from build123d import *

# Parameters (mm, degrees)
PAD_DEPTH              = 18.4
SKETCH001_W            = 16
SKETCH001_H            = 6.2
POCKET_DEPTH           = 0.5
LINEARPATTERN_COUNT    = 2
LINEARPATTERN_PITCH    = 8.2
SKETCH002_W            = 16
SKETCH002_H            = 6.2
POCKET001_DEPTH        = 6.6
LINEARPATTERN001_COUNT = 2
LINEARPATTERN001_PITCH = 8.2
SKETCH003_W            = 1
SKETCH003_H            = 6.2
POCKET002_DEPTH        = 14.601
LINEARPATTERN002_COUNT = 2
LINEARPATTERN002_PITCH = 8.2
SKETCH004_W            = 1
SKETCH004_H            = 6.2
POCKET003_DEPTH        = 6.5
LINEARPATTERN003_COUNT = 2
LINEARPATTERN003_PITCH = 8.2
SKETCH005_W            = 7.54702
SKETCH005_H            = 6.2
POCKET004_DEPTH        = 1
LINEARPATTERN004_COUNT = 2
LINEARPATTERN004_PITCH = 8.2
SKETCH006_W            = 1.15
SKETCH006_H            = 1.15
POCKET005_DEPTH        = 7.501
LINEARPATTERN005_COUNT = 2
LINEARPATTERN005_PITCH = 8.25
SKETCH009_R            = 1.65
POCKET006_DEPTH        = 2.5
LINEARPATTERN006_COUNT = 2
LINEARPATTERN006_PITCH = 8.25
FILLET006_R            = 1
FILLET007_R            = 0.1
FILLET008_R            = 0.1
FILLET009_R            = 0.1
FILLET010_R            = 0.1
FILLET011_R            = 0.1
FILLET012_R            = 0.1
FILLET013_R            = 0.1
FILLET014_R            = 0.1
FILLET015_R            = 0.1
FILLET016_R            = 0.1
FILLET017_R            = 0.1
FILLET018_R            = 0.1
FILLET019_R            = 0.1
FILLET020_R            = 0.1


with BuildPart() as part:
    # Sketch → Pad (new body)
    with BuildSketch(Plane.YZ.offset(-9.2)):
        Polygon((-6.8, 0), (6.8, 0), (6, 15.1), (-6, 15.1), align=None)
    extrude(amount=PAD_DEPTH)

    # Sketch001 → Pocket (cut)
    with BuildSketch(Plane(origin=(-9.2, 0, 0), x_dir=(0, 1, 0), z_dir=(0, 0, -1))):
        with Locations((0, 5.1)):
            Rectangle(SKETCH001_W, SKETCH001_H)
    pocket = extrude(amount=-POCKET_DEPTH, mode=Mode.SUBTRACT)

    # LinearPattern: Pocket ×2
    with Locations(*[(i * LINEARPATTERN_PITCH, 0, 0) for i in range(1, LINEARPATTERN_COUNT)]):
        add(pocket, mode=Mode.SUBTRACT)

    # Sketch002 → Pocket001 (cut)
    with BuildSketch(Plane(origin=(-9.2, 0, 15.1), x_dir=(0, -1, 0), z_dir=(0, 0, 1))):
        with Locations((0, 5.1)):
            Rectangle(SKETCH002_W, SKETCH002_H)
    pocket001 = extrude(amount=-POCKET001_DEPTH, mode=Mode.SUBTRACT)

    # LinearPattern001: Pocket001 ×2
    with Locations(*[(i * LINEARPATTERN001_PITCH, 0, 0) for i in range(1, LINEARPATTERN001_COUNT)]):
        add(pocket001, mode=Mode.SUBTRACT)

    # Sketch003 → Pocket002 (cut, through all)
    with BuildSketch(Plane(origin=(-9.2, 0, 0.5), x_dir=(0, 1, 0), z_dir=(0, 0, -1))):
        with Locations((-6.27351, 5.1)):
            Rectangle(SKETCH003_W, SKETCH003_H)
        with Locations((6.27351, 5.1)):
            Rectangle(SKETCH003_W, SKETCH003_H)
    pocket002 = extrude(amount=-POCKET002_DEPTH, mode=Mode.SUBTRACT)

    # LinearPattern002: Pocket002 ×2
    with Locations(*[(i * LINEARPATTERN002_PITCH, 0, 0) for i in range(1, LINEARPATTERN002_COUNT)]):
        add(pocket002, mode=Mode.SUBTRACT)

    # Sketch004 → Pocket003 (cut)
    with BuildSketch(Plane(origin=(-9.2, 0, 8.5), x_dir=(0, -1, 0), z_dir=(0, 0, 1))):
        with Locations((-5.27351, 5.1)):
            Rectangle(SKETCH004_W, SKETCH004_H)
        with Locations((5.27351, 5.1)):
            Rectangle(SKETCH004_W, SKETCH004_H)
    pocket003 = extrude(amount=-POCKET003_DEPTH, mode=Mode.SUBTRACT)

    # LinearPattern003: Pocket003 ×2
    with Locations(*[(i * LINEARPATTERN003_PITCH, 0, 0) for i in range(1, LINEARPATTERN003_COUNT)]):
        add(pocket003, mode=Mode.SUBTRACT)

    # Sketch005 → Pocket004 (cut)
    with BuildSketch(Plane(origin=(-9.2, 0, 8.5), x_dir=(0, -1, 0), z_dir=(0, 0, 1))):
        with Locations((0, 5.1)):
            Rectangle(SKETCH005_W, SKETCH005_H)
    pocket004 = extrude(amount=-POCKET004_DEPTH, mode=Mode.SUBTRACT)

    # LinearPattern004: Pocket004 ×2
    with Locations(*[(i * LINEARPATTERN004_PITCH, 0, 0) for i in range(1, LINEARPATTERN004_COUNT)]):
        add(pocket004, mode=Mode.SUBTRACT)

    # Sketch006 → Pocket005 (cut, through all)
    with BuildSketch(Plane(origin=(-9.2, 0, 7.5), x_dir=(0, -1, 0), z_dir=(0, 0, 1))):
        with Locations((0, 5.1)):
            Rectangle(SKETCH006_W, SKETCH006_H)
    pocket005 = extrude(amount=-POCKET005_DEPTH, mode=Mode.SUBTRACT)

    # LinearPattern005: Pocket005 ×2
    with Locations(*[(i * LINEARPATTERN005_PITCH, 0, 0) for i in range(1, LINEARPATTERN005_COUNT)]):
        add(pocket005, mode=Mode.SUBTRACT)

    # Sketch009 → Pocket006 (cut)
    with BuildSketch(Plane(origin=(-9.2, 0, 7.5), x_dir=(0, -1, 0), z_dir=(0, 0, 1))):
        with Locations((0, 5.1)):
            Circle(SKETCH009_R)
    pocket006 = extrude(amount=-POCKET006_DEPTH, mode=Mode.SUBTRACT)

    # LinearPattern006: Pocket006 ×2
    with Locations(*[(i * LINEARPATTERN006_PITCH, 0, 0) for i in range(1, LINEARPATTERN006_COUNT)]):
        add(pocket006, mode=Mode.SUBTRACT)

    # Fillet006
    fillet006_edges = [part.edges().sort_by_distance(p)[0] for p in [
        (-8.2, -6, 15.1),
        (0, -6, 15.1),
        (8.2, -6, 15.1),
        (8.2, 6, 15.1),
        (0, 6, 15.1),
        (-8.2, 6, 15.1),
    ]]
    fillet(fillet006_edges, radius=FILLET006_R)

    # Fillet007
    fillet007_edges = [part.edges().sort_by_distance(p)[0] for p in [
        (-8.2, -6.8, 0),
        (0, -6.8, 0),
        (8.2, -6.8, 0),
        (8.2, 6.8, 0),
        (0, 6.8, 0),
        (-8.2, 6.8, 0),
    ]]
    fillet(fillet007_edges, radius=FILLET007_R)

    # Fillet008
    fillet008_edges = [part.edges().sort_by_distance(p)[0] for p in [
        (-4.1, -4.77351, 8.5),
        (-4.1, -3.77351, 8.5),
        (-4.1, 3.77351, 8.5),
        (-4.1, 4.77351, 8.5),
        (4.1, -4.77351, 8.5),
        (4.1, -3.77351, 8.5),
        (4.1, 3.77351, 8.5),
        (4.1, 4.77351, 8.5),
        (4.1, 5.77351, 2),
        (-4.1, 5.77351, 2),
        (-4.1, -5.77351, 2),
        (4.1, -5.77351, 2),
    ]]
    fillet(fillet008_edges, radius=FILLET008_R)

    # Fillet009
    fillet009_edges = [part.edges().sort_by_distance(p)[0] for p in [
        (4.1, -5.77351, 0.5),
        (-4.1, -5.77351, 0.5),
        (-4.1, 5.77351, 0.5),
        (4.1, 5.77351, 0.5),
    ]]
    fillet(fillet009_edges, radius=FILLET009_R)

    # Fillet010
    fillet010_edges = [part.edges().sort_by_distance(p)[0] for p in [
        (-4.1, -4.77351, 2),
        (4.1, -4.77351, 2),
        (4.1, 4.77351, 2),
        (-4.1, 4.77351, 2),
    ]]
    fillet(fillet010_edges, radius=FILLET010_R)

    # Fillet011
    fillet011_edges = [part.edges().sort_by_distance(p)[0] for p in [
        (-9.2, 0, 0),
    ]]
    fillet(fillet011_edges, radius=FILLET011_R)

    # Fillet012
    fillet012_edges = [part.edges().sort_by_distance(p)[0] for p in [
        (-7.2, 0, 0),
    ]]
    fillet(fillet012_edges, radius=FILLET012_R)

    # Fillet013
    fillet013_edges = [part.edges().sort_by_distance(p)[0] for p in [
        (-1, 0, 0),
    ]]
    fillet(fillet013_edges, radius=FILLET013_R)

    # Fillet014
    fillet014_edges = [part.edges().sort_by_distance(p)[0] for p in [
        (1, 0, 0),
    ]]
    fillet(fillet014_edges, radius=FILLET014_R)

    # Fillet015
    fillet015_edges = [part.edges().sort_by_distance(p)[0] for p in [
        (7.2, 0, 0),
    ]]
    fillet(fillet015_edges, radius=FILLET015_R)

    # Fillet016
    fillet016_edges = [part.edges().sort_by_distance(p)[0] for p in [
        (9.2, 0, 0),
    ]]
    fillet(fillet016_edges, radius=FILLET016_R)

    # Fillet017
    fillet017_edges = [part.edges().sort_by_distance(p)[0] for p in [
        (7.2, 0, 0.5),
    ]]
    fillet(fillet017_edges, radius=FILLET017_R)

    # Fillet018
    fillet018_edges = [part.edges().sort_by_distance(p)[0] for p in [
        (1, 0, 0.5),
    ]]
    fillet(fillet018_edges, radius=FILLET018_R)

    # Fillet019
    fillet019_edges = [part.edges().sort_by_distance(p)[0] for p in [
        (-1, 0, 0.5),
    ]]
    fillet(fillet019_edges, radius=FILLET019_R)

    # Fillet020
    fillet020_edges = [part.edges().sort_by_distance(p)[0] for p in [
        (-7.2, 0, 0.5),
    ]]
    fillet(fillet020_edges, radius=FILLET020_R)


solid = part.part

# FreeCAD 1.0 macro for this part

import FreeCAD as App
import Part
import Sketcher
Q = App.Units.Quantity


def edges_at(feature, points):
    """Names of the edges that pass closest to the given points."""
    edges = feature.Shape.Edges
    near = lambda p: min(range(len(edges)), key=lambda i: edges[i].distToShape(Part.Vertex(*p))[0])
    return sorted({f"Edge{near(p) + 1}" for p in points})

doc = App.newDocument("Part")
body = doc.addObject("PartDesign::Body", "Body")

# Sketch on YZ plane
sketch1 = doc.addObject("Sketcher::SketchObject", "Sketch")
body.addObject(sketch1)
sketch1.AttachmentSupport = (doc.YZ_Plane, [""])
sketch1.MapMode = "FlatFace"
sketch1.AttachmentOffset = App.Placement(App.Vector(0, 0, -9.2), App.Rotation())
sketch1.addGeometry(Part.LineSegment(App.Vector(-7, 0, 0), App.Vector(7, 0, 0)), False)
sketch1.addGeometry(Part.LineSegment(App.Vector(7, 0, 0), App.Vector(6, 15, 0)), False)
sketch1.addGeometry(Part.LineSegment(App.Vector(6, 15, 0), App.Vector(-6, 15, 0)), False)
sketch1.addGeometry(Part.LineSegment(App.Vector(-6, 15, 0), App.Vector(-7, 0, 0)), False)
sketch1.addConstraint(Sketcher.Constraint("Coincident", 0, 2, 1, 1))
sketch1.addConstraint(Sketcher.Constraint("Coincident", 1, 2, 2, 1))
sketch1.addConstraint(Sketcher.Constraint("Coincident", 2, 2, 3, 1))
sketch1.addConstraint(Sketcher.Constraint("Coincident", 3, 2, 0, 1))
sketch1.addConstraint(Sketcher.Constraint("Horizontal", 0))
sketch1.addConstraint(Sketcher.Constraint("Horizontal", 2))
sketch1.addConstraint(Sketcher.Constraint("Symmetric", 0, 2, 3, 2, -1, 1))
sketch1.addConstraint(Sketcher.Constraint("Equal", 1, 3))
sketch1.addConstraint(Sketcher.Constraint("DistanceX", 2, 2, 2, 1, Q("12 mm")))
sketch1.addConstraint(Sketcher.Constraint("DistanceX", 0, 1, 0, 2, Q("13.6 mm")))
sketch1.addConstraint(Sketcher.Constraint("DistanceY", -1, 1, 1, 2, Q("15.1 mm")))
pad1 = doc.addObject("PartDesign::Pad", "Pad")
body.addObject(pad1)
pad1.Profile = sketch1
pad1.Length = 18.4

# Sketch on XY plane
sketch2 = doc.addObject("Sketcher::SketchObject", "Sketch001")
body.addObject(sketch2)
sketch2.AttachmentSupport = (doc.XY_Plane, [""])
sketch2.MapMode = "FlatFace"
sketch2.addGeometry(Part.LineSegment(App.Vector(-1, -8, 0), App.Vector(-7, -8, 0)), False)
sketch2.addGeometry(Part.LineSegment(App.Vector(-7, -8, 0), App.Vector(-7, 8, 0)), False)
sketch2.addGeometry(Part.LineSegment(App.Vector(-7, 8, 0), App.Vector(-1, 8, 0)), False)
sketch2.addGeometry(Part.LineSegment(App.Vector(-1, 8, 0), App.Vector(-1, -8, 0)), False)
sketch2.addConstraint(Sketcher.Constraint("Coincident", 0, 2, 1, 1))
sketch2.addConstraint(Sketcher.Constraint("Coincident", 1, 2, 2, 1))
sketch2.addConstraint(Sketcher.Constraint("Coincident", 2, 2, 3, 1))
sketch2.addConstraint(Sketcher.Constraint("Coincident", 3, 2, 0, 1))
sketch2.addConstraint(Sketcher.Constraint("Horizontal", 0))
sketch2.addConstraint(Sketcher.Constraint("Vertical", 1))
sketch2.addConstraint(Sketcher.Constraint("Horizontal", 2))
sketch2.addConstraint(Sketcher.Constraint("Vertical", 3))
sketch2.addConstraint(Sketcher.Constraint("DistanceY", 1, 1, 1, 2, Q("16 mm")))
sketch2.addConstraint(Sketcher.Constraint("DistanceX", 0, 2, 0, 1, Q("6.2 mm")))
sketch2.addConstraint(Sketcher.Constraint("DistanceY", 0, 2, -1, 1, Q("8 mm")))
sketch2.addConstraint(Sketcher.Constraint("DistanceX", 2, 2, -1, 1, Q("1 mm")))
pocket1 = doc.addObject("PartDesign::Pocket", "Pocket")
body.addObject(pocket1)
pocket1.Profile = sketch2
pocket1.Length = 0.5
pocket1.Reversed = True
doc.recompute()

linearpattern = doc.addObject("PartDesign::LinearPattern", "LinearPattern")
body.addObject(linearpattern)
linearpattern.Originals = [pocket1]
linearpattern.Direction = (doc.X_Axis, [""])
linearpattern.Mode = "offset"
linearpattern.Offset = 8.2
linearpattern.Occurrences = 2
body.Tip = linearpattern

# Sketch on XY plane
sketch3 = doc.addObject("Sketcher::SketchObject", "Sketch002")
body.addObject(sketch3)
sketch3.AttachmentSupport = (doc.XY_Plane, [""])
sketch3.MapMode = "FlatFace"
sketch3.AttachmentOffset = App.Placement(App.Vector(0, 0, 15.1), App.Rotation())
sketch3.addGeometry(Part.LineSegment(App.Vector(-1, 8, 0), App.Vector(-7, 8, 0)), False)
sketch3.addGeometry(Part.LineSegment(App.Vector(-7, 8, 0), App.Vector(-7, -8, 0)), False)
sketch3.addGeometry(Part.LineSegment(App.Vector(-7, -8, 0), App.Vector(-1, -8, 0)), False)
sketch3.addGeometry(Part.LineSegment(App.Vector(-1, -8, 0), App.Vector(-1, 8, 0)), False)
sketch3.addConstraint(Sketcher.Constraint("Coincident", 0, 2, 1, 1))
sketch3.addConstraint(Sketcher.Constraint("Coincident", 1, 2, 2, 1))
sketch3.addConstraint(Sketcher.Constraint("Coincident", 2, 2, 3, 1))
sketch3.addConstraint(Sketcher.Constraint("Coincident", 3, 2, 0, 1))
sketch3.addConstraint(Sketcher.Constraint("Horizontal", 0))
sketch3.addConstraint(Sketcher.Constraint("Vertical", 1))
sketch3.addConstraint(Sketcher.Constraint("Horizontal", 2))
sketch3.addConstraint(Sketcher.Constraint("Vertical", 3))
sketch3.addConstraint(Sketcher.Constraint("DistanceY", 1, 2, 1, 1, Q("16 mm")))
sketch3.addConstraint(Sketcher.Constraint("DistanceX", 0, 2, 0, 1, Q("6.2 mm")))
sketch3.addConstraint(Sketcher.Constraint("DistanceY", -1, 1, 0, 2, Q("8 mm")))
sketch3.addConstraint(Sketcher.Constraint("DistanceX", 2, 2, -1, 1, Q("1 mm")))
pocket2 = doc.addObject("PartDesign::Pocket", "Pocket001")
body.addObject(pocket2)
pocket2.Profile = sketch3
pocket2.Length = 6.6
doc.recompute()

linearpattern2 = doc.addObject("PartDesign::LinearPattern", "LinearPattern001")
body.addObject(linearpattern2)
linearpattern2.Originals = [pocket2]
linearpattern2.Direction = (doc.X_Axis, [""])
linearpattern2.Mode = "offset"
linearpattern2.Offset = 8.2
linearpattern2.Occurrences = 2
body.Tip = linearpattern2

# Sketch on XY plane
sketch4 = doc.addObject("Sketcher::SketchObject", "Sketch003")
body.addObject(sketch4)
sketch4.AttachmentSupport = (doc.XY_Plane, [""])
sketch4.MapMode = "FlatFace"
sketch4.AttachmentOffset = App.Placement(App.Vector(0, 0, 0.5), App.Rotation())
sketch4.addGeometry(Part.LineSegment(App.Vector(-1, -6.8, 0), App.Vector(-7.2, -6.8, 0)), False)
sketch4.addGeometry(Part.LineSegment(App.Vector(-7.2, -6.8, 0), App.Vector(-7.2, -5.8, 0)), False)
sketch4.addGeometry(Part.LineSegment(App.Vector(-7.2, -5.8, 0), App.Vector(-1, -5.8, 0)), False)
sketch4.addGeometry(Part.LineSegment(App.Vector(-1, -5.8, 0), App.Vector(-1, -6.8, 0)), False)
sketch4.addGeometry(Part.LineSegment(App.Vector(-1, 5.8, 0), App.Vector(-7.2, 5.8, 0)), False)
sketch4.addGeometry(Part.LineSegment(App.Vector(-7.2, 5.8, 0), App.Vector(-7.2, 6.8, 0)), False)
sketch4.addGeometry(Part.LineSegment(App.Vector(-7.2, 6.8, 0), App.Vector(-1, 6.8, 0)), False)
sketch4.addGeometry(Part.LineSegment(App.Vector(-1, 6.8, 0), App.Vector(-1, 5.8, 0)), False)
sketch4.addConstraint(Sketcher.Constraint("Coincident", 0, 2, 1, 1))
sketch4.addConstraint(Sketcher.Constraint("Coincident", 1, 2, 2, 1))
sketch4.addConstraint(Sketcher.Constraint("Coincident", 2, 2, 3, 1))
sketch4.addConstraint(Sketcher.Constraint("Coincident", 3, 2, 0, 1))
sketch4.addConstraint(Sketcher.Constraint("Coincident", 4, 2, 5, 1))
sketch4.addConstraint(Sketcher.Constraint("Coincident", 5, 2, 6, 1))
sketch4.addConstraint(Sketcher.Constraint("Coincident", 6, 2, 7, 1))
sketch4.addConstraint(Sketcher.Constraint("Coincident", 7, 2, 4, 1))
sketch4.addConstraint(Sketcher.Constraint("Horizontal", 0))
sketch4.addConstraint(Sketcher.Constraint("Vertical", 1))
sketch4.addConstraint(Sketcher.Constraint("Horizontal", 2))
sketch4.addConstraint(Sketcher.Constraint("Vertical", 3))
sketch4.addConstraint(Sketcher.Constraint("Horizontal", 4))
sketch4.addConstraint(Sketcher.Constraint("Vertical", 5))
sketch4.addConstraint(Sketcher.Constraint("Horizontal", 6))
sketch4.addConstraint(Sketcher.Constraint("Vertical", 7))
sketch4.addConstraint(Sketcher.Constraint("Symmetric", 1, 2, 4, 2, -1))
sketch4.addConstraint(Sketcher.Constraint("Symmetric", 3, 2, 6, 2, -1))
sketch4.addConstraint(Sketcher.Constraint("DistanceY", 1, 1, 1, 2, Q("1 mm")))
sketch4.addConstraint(Sketcher.Constraint("DistanceX", 0, 2, 0, 1, Q("6.2 mm")))
sketch4.addConstraint(Sketcher.Constraint("DistanceX", 2, 2, -1, 1, Q("1 mm")))
sketch4.addConstraint(Sketcher.Constraint("DistanceY", 0, 2, -1, 1, Q("6.77351 mm")))
pocket3 = doc.addObject("PartDesign::Pocket", "Pocket002")
body.addObject(pocket3)
pocket3.Profile = sketch4
pocket3.Type = "ThroughAll"
pocket3.Reversed = True
doc.recompute()

linearpattern3 = doc.addObject("PartDesign::LinearPattern", "LinearPattern002")
body.addObject(linearpattern3)
linearpattern3.Originals = [pocket3]
linearpattern3.Direction = (doc.X_Axis, [""])
linearpattern3.Mode = "offset"
linearpattern3.Offset = 8.2
linearpattern3.Occurrences = 2
body.Tip = linearpattern3

# Sketch on XY plane
sketch5 = doc.addObject("Sketcher::SketchObject", "Sketch004")
body.addObject(sketch5)
sketch5.AttachmentSupport = (doc.XY_Plane, [""])
sketch5.MapMode = "FlatFace"
sketch5.AttachmentOffset = App.Placement(App.Vector(0, 0, 8.5), App.Rotation())
sketch5.addGeometry(Part.LineSegment(App.Vector(-1, 5.8, 0), App.Vector(-7.2, 5.8, 0)), False)
sketch5.addGeometry(Part.LineSegment(App.Vector(-7.2, 5.8, 0), App.Vector(-7.2, 4.8, 0)), False)
sketch5.addGeometry(Part.LineSegment(App.Vector(-7.2, 4.8, 0), App.Vector(-1, 4.8, 0)), False)
sketch5.addGeometry(Part.LineSegment(App.Vector(-1, 4.8, 0), App.Vector(-1, 5.8, 0)), False)
sketch5.addGeometry(Part.LineSegment(App.Vector(-1, -4.8, 0), App.Vector(-7.2, -4.8, 0)), False)
sketch5.addGeometry(Part.LineSegment(App.Vector(-7.2, -4.8, 0), App.Vector(-7.2, -5.8, 0)), False)
sketch5.addGeometry(Part.LineSegment(App.Vector(-7.2, -5.8, 0), App.Vector(-1, -5.8, 0)), False)
sketch5.addGeometry(Part.LineSegment(App.Vector(-1, -5.8, 0), App.Vector(-1, -4.8, 0)), False)
sketch5.addConstraint(Sketcher.Constraint("Coincident", 0, 2, 1, 1))
sketch5.addConstraint(Sketcher.Constraint("Coincident", 1, 2, 2, 1))
sketch5.addConstraint(Sketcher.Constraint("Coincident", 2, 2, 3, 1))
sketch5.addConstraint(Sketcher.Constraint("Coincident", 3, 2, 0, 1))
sketch5.addConstraint(Sketcher.Constraint("Coincident", 4, 2, 5, 1))
sketch5.addConstraint(Sketcher.Constraint("Coincident", 5, 2, 6, 1))
sketch5.addConstraint(Sketcher.Constraint("Coincident", 6, 2, 7, 1))
sketch5.addConstraint(Sketcher.Constraint("Coincident", 7, 2, 4, 1))
sketch5.addConstraint(Sketcher.Constraint("Horizontal", 0))
sketch5.addConstraint(Sketcher.Constraint("Vertical", 1))
sketch5.addConstraint(Sketcher.Constraint("Horizontal", 2))
sketch5.addConstraint(Sketcher.Constraint("Vertical", 3))
sketch5.addConstraint(Sketcher.Constraint("Horizontal", 4))
sketch5.addConstraint(Sketcher.Constraint("Vertical", 5))
sketch5.addConstraint(Sketcher.Constraint("Horizontal", 6))
sketch5.addConstraint(Sketcher.Constraint("Vertical", 7))
sketch5.addConstraint(Sketcher.Constraint("Symmetric", 1, 2, 4, 2, -1))
sketch5.addConstraint(Sketcher.Constraint("Symmetric", 3, 2, 6, 2, -1))
sketch5.addConstraint(Sketcher.Constraint("DistanceY", 1, 2, 1, 1, Q("1 mm")))
sketch5.addConstraint(Sketcher.Constraint("DistanceX", 0, 2, 0, 1, Q("6.2 mm")))
sketch5.addConstraint(Sketcher.Constraint("DistanceX", 2, 2, -1, 1, Q("1 mm")))
sketch5.addConstraint(Sketcher.Constraint("DistanceY", -1, 1, 0, 2, Q("5.77351 mm")))
pocket4 = doc.addObject("PartDesign::Pocket", "Pocket003")
body.addObject(pocket4)
pocket4.Profile = sketch5
pocket4.Length = 6.5
doc.recompute()

linearpattern4 = doc.addObject("PartDesign::LinearPattern", "LinearPattern003")
body.addObject(linearpattern4)
linearpattern4.Originals = [pocket4]
linearpattern4.Direction = (doc.X_Axis, [""])
linearpattern4.Mode = "offset"
linearpattern4.Offset = 8.2
linearpattern4.Occurrences = 2
body.Tip = linearpattern4

# Sketch on XY plane
sketch6 = doc.addObject("Sketcher::SketchObject", "Sketch005")
body.addObject(sketch6)
sketch6.AttachmentSupport = (doc.XY_Plane, [""])
sketch6.MapMode = "FlatFace"
sketch6.AttachmentOffset = App.Placement(App.Vector(0, 0, 8.5), App.Rotation())
sketch6.addGeometry(Part.LineSegment(App.Vector(-1, 4, 0), App.Vector(-7, 4, 0)), False)
sketch6.addGeometry(Part.LineSegment(App.Vector(-7, 4, 0), App.Vector(-7, -4, 0)), False)
sketch6.addGeometry(Part.LineSegment(App.Vector(-7, -4, 0), App.Vector(-1, -4, 0)), False)
sketch6.addGeometry(Part.LineSegment(App.Vector(-1, -4, 0), App.Vector(-1, 4, 0)), False)
sketch6.addConstraint(Sketcher.Constraint("Coincident", 0, 2, 1, 1))
sketch6.addConstraint(Sketcher.Constraint("Coincident", 1, 2, 2, 1))
sketch6.addConstraint(Sketcher.Constraint("Coincident", 2, 2, 3, 1))
sketch6.addConstraint(Sketcher.Constraint("Coincident", 3, 2, 0, 1))
sketch6.addConstraint(Sketcher.Constraint("Horizontal", 0))
sketch6.addConstraint(Sketcher.Constraint("Vertical", 1))
sketch6.addConstraint(Sketcher.Constraint("Horizontal", 2))
sketch6.addConstraint(Sketcher.Constraint("Vertical", 3))
sketch6.addConstraint(Sketcher.Constraint("DistanceX", 0, 2, 0, 1, Q("6.2 mm")))
sketch6.addConstraint(Sketcher.Constraint("DistanceX", 2, 2, -1, 1, Q("1 mm")))
sketch6.addConstraint(Sketcher.Constraint("DistanceY", 1, 2, 1, 1, Q("7.54702 mm")))
sketch6.addConstraint(Sketcher.Constraint("DistanceY", -1, 1, 0, 2, Q("3.77351 mm")))
pocket5 = doc.addObject("PartDesign::Pocket", "Pocket004")
body.addObject(pocket5)
pocket5.Profile = sketch6
pocket5.Length = 1
doc.recompute()

linearpattern5 = doc.addObject("PartDesign::LinearPattern", "LinearPattern004")
body.addObject(linearpattern5)
linearpattern5.Originals = [pocket5]
linearpattern5.Direction = (doc.X_Axis, [""])
linearpattern5.Mode = "offset"
linearpattern5.Offset = 8.2
linearpattern5.Occurrences = 2
body.Tip = linearpattern5

# Sketch on XY plane
sketch7 = doc.addObject("Sketcher::SketchObject", "Sketch006")
body.addObject(sketch7)
sketch7.AttachmentSupport = (doc.XY_Plane, [""])
sketch7.MapMode = "FlatFace"
sketch7.AttachmentOffset = App.Placement(App.Vector(0, 0, 7.5), App.Rotation())
sketch7.addGeometry(Part.LineSegment(App.Vector(-3.5, 0.6, 0), App.Vector(-4.7, 0.6, 0)), False)
sketch7.addGeometry(Part.LineSegment(App.Vector(-4.7, 0.6, 0), App.Vector(-4.7, -0.6, 0)), False)
sketch7.addGeometry(Part.LineSegment(App.Vector(-4.7, -0.6, 0), App.Vector(-3.5, -0.6, 0)), False)
sketch7.addGeometry(Part.LineSegment(App.Vector(-3.5, -0.6, 0), App.Vector(-3.5, 0.6, 0)), False)
sketch7.addConstraint(Sketcher.Constraint("Coincident", 0, 2, 1, 1))
sketch7.addConstraint(Sketcher.Constraint("Coincident", 1, 2, 2, 1))
sketch7.addConstraint(Sketcher.Constraint("Coincident", 2, 2, 3, 1))
sketch7.addConstraint(Sketcher.Constraint("Coincident", 3, 2, 0, 1))
sketch7.addConstraint(Sketcher.Constraint("Horizontal", 0))
sketch7.addConstraint(Sketcher.Constraint("Vertical", 1))
sketch7.addConstraint(Sketcher.Constraint("Horizontal", 2))
sketch7.addConstraint(Sketcher.Constraint("Vertical", 3))
sketch7.addConstraint(Sketcher.Constraint("Equal", 2, 1))
sketch7.addConstraint(Sketcher.Constraint("DistanceX", 0, 2, 0, 1, Q("1.15 mm")))
sketch7.addConstraint(Sketcher.Constraint("DistanceX", 0, 2, -1, 1, Q("4.675 mm")))
sketch7.addConstraint(Sketcher.Constraint("DistanceY", -1, 1, 0, 2, Q("0.575 mm")))
pocket6 = doc.addObject("PartDesign::Pocket", "Pocket005")
body.addObject(pocket6)
pocket6.Profile = sketch7
pocket6.Type = "ThroughAll"
doc.recompute()

linearpattern6 = doc.addObject("PartDesign::LinearPattern", "LinearPattern005")
body.addObject(linearpattern6)
linearpattern6.Originals = [pocket6]
linearpattern6.Direction = (doc.X_Axis, [""])
linearpattern6.Mode = "offset"
linearpattern6.Offset = 8.25
linearpattern6.Occurrences = 2
body.Tip = linearpattern6

# Sketch on XY plane
sketch8 = doc.addObject("Sketcher::SketchObject", "Sketch007")
body.addObject(sketch8)
sketch8.AttachmentSupport = (doc.XY_Plane, [""])
sketch8.MapMode = "FlatFace"
sketch8.AttachmentOffset = App.Placement(App.Vector(0, 0, 7.5), App.Rotation())
sketch8.addGeometry(Part.Circle(App.Vector(-4.1, 0, 0), App.Vector(0, 0, 1), 1.6), False)
sketch8.addConstraint(Sketcher.Constraint("PointOnObject", 0, 3, -1))
sketch8.addConstraint(Sketcher.Constraint("Diameter", 0, Q("3.3 mm")))
sketch8.addConstraint(Sketcher.Constraint("DistanceX", 0, 3, -1, 1, Q("4.1 mm")))
pocket7 = doc.addObject("PartDesign::Pocket", "Pocket006")
body.addObject(pocket7)
pocket7.Profile = sketch8
pocket7.Length = 2.5
doc.recompute()

linearpattern7 = doc.addObject("PartDesign::LinearPattern", "LinearPattern006")
body.addObject(linearpattern7)
linearpattern7.Originals = [pocket7]
linearpattern7.Direction = (doc.X_Axis, [""])
linearpattern7.Mode = "offset"
linearpattern7.Offset = 8.25
linearpattern7.Occurrences = 2
body.Tip = linearpattern7
doc.recompute()

fillet = doc.addObject("PartDesign::Fillet", "Fillet")
body.addObject(fillet)
fillet.Base = (linearpattern7, edges_at(linearpattern7, [
    (-8.2, -6, 15.1),
    (0, -6, 15.1),
    (8.2, -6, 15.1),
    (8.2, 6, 15.1),
    (0, 6, 15.1),
    (-8.2, 6, 15.1),
]))
fillet.Radius = 1
doc.recompute()

fillet2 = doc.addObject("PartDesign::Fillet", "Fillet001")
body.addObject(fillet2)
fillet2.Base = (fillet, edges_at(fillet, [
    (-8.2, -6.8, 0),
    (0, -6.8, 0),
    (8.2, -6.8, 0),
    (8.2, 6.8, 0),
    (0, 6.8, 0),
    (-8.2, 6.8, 0),
]))
fillet2.Radius = 0.1
doc.recompute()

fillet3 = doc.addObject("PartDesign::Fillet", "Fillet002")
body.addObject(fillet3)
fillet3.Base = (fillet2, edges_at(fillet2, [
    (-4.1, -4.774, 8.5),
    (-4.1, -3.774, 8.5),
    (-4.1, 3.774, 8.5),
    (-4.1, 4.774, 8.5),
    (4.1, -4.774, 8.5),
    (4.1, -3.774, 8.5),
    (4.1, 3.774, 8.5),
    (4.1, 4.774, 8.5),
    (4.1, 5.774, 2),
    (-4.1, 5.774, 2),
    (-4.1, -5.774, 2),
    (4.1, -5.774, 2),
]))
fillet3.Radius = 0.1
doc.recompute()

fillet4 = doc.addObject("PartDesign::Fillet", "Fillet003")
body.addObject(fillet4)
fillet4.Base = (fillet3, edges_at(fillet3, [
    (4.1, -5.774, 0.5),
    (-4.1, -5.774, 0.5),
    (-4.1, 5.774, 0.5),
    (4.1, 5.774, 0.5),
]))
fillet4.Radius = 0.1
doc.recompute()

fillet5 = doc.addObject("PartDesign::Fillet", "Fillet004")
body.addObject(fillet5)
fillet5.Base = (fillet4, edges_at(fillet4, [
    (-4.1, -4.774, 2),
    (4.1, -4.774, 2),
    (4.1, 4.774, 2),
    (-4.1, 4.774, 2),
]))
fillet5.Radius = 0.1
doc.recompute()

fillet6 = doc.addObject("PartDesign::Fillet", "Fillet005")
body.addObject(fillet6)
fillet6.Base = (fillet5, edges_at(fillet5, [(-9.2, 0, 0)]))
fillet6.Radius = 0.1
doc.recompute()

fillet7 = doc.addObject("PartDesign::Fillet", "Fillet006")
body.addObject(fillet7)
fillet7.Base = (fillet6, edges_at(fillet6, [(-7.2, 0, 0)]))
fillet7.Radius = 0.1
doc.recompute()

fillet8 = doc.addObject("PartDesign::Fillet", "Fillet007")
body.addObject(fillet8)
fillet8.Base = (fillet7, edges_at(fillet7, [(-1, 0, 0)]))
fillet8.Radius = 0.1
doc.recompute()

fillet9 = doc.addObject("PartDesign::Fillet", "Fillet008")
body.addObject(fillet9)
fillet9.Base = (fillet8, edges_at(fillet8, [(1, 0, 0)]))
fillet9.Radius = 0.1
doc.recompute()

fillet10 = doc.addObject("PartDesign::Fillet", "Fillet009")
body.addObject(fillet10)
fillet10.Base = (fillet9, edges_at(fillet9, [(7.2, 0, 0)]))
fillet10.Radius = 0.1
doc.recompute()

fillet11 = doc.addObject("PartDesign::Fillet", "Fillet010")
body.addObject(fillet11)
fillet11.Base = (fillet10, edges_at(fillet10, [(9.2, 0, 0)]))
fillet11.Radius = 0.1
doc.recompute()

fillet12 = doc.addObject("PartDesign::Fillet", "Fillet011")
body.addObject(fillet12)
fillet12.Base = (fillet11, edges_at(fillet11, [(7.2, 0, 0.5)]))
fillet12.Radius = 0.1
doc.recompute()

fillet13 = doc.addObject("PartDesign::Fillet", "Fillet012")
body.addObject(fillet13)
fillet13.Base = (fillet12, edges_at(fillet12, [(1, 0, 0.5)]))
fillet13.Radius = 0.1
doc.recompute()

fillet14 = doc.addObject("PartDesign::Fillet", "Fillet013")
body.addObject(fillet14)
fillet14.Base = (fillet13, edges_at(fillet13, [(-1, 0, 0.5)]))
fillet14.Radius = 0.1
doc.recompute()

fillet15 = doc.addObject("PartDesign::Fillet", "Fillet014")
body.addObject(fillet15)
fillet15.Base = (fillet14, edges_at(fillet14, [(-7.2, 0, 0.5)]))
fillet15.Radius = 0.1

doc.recompute()
